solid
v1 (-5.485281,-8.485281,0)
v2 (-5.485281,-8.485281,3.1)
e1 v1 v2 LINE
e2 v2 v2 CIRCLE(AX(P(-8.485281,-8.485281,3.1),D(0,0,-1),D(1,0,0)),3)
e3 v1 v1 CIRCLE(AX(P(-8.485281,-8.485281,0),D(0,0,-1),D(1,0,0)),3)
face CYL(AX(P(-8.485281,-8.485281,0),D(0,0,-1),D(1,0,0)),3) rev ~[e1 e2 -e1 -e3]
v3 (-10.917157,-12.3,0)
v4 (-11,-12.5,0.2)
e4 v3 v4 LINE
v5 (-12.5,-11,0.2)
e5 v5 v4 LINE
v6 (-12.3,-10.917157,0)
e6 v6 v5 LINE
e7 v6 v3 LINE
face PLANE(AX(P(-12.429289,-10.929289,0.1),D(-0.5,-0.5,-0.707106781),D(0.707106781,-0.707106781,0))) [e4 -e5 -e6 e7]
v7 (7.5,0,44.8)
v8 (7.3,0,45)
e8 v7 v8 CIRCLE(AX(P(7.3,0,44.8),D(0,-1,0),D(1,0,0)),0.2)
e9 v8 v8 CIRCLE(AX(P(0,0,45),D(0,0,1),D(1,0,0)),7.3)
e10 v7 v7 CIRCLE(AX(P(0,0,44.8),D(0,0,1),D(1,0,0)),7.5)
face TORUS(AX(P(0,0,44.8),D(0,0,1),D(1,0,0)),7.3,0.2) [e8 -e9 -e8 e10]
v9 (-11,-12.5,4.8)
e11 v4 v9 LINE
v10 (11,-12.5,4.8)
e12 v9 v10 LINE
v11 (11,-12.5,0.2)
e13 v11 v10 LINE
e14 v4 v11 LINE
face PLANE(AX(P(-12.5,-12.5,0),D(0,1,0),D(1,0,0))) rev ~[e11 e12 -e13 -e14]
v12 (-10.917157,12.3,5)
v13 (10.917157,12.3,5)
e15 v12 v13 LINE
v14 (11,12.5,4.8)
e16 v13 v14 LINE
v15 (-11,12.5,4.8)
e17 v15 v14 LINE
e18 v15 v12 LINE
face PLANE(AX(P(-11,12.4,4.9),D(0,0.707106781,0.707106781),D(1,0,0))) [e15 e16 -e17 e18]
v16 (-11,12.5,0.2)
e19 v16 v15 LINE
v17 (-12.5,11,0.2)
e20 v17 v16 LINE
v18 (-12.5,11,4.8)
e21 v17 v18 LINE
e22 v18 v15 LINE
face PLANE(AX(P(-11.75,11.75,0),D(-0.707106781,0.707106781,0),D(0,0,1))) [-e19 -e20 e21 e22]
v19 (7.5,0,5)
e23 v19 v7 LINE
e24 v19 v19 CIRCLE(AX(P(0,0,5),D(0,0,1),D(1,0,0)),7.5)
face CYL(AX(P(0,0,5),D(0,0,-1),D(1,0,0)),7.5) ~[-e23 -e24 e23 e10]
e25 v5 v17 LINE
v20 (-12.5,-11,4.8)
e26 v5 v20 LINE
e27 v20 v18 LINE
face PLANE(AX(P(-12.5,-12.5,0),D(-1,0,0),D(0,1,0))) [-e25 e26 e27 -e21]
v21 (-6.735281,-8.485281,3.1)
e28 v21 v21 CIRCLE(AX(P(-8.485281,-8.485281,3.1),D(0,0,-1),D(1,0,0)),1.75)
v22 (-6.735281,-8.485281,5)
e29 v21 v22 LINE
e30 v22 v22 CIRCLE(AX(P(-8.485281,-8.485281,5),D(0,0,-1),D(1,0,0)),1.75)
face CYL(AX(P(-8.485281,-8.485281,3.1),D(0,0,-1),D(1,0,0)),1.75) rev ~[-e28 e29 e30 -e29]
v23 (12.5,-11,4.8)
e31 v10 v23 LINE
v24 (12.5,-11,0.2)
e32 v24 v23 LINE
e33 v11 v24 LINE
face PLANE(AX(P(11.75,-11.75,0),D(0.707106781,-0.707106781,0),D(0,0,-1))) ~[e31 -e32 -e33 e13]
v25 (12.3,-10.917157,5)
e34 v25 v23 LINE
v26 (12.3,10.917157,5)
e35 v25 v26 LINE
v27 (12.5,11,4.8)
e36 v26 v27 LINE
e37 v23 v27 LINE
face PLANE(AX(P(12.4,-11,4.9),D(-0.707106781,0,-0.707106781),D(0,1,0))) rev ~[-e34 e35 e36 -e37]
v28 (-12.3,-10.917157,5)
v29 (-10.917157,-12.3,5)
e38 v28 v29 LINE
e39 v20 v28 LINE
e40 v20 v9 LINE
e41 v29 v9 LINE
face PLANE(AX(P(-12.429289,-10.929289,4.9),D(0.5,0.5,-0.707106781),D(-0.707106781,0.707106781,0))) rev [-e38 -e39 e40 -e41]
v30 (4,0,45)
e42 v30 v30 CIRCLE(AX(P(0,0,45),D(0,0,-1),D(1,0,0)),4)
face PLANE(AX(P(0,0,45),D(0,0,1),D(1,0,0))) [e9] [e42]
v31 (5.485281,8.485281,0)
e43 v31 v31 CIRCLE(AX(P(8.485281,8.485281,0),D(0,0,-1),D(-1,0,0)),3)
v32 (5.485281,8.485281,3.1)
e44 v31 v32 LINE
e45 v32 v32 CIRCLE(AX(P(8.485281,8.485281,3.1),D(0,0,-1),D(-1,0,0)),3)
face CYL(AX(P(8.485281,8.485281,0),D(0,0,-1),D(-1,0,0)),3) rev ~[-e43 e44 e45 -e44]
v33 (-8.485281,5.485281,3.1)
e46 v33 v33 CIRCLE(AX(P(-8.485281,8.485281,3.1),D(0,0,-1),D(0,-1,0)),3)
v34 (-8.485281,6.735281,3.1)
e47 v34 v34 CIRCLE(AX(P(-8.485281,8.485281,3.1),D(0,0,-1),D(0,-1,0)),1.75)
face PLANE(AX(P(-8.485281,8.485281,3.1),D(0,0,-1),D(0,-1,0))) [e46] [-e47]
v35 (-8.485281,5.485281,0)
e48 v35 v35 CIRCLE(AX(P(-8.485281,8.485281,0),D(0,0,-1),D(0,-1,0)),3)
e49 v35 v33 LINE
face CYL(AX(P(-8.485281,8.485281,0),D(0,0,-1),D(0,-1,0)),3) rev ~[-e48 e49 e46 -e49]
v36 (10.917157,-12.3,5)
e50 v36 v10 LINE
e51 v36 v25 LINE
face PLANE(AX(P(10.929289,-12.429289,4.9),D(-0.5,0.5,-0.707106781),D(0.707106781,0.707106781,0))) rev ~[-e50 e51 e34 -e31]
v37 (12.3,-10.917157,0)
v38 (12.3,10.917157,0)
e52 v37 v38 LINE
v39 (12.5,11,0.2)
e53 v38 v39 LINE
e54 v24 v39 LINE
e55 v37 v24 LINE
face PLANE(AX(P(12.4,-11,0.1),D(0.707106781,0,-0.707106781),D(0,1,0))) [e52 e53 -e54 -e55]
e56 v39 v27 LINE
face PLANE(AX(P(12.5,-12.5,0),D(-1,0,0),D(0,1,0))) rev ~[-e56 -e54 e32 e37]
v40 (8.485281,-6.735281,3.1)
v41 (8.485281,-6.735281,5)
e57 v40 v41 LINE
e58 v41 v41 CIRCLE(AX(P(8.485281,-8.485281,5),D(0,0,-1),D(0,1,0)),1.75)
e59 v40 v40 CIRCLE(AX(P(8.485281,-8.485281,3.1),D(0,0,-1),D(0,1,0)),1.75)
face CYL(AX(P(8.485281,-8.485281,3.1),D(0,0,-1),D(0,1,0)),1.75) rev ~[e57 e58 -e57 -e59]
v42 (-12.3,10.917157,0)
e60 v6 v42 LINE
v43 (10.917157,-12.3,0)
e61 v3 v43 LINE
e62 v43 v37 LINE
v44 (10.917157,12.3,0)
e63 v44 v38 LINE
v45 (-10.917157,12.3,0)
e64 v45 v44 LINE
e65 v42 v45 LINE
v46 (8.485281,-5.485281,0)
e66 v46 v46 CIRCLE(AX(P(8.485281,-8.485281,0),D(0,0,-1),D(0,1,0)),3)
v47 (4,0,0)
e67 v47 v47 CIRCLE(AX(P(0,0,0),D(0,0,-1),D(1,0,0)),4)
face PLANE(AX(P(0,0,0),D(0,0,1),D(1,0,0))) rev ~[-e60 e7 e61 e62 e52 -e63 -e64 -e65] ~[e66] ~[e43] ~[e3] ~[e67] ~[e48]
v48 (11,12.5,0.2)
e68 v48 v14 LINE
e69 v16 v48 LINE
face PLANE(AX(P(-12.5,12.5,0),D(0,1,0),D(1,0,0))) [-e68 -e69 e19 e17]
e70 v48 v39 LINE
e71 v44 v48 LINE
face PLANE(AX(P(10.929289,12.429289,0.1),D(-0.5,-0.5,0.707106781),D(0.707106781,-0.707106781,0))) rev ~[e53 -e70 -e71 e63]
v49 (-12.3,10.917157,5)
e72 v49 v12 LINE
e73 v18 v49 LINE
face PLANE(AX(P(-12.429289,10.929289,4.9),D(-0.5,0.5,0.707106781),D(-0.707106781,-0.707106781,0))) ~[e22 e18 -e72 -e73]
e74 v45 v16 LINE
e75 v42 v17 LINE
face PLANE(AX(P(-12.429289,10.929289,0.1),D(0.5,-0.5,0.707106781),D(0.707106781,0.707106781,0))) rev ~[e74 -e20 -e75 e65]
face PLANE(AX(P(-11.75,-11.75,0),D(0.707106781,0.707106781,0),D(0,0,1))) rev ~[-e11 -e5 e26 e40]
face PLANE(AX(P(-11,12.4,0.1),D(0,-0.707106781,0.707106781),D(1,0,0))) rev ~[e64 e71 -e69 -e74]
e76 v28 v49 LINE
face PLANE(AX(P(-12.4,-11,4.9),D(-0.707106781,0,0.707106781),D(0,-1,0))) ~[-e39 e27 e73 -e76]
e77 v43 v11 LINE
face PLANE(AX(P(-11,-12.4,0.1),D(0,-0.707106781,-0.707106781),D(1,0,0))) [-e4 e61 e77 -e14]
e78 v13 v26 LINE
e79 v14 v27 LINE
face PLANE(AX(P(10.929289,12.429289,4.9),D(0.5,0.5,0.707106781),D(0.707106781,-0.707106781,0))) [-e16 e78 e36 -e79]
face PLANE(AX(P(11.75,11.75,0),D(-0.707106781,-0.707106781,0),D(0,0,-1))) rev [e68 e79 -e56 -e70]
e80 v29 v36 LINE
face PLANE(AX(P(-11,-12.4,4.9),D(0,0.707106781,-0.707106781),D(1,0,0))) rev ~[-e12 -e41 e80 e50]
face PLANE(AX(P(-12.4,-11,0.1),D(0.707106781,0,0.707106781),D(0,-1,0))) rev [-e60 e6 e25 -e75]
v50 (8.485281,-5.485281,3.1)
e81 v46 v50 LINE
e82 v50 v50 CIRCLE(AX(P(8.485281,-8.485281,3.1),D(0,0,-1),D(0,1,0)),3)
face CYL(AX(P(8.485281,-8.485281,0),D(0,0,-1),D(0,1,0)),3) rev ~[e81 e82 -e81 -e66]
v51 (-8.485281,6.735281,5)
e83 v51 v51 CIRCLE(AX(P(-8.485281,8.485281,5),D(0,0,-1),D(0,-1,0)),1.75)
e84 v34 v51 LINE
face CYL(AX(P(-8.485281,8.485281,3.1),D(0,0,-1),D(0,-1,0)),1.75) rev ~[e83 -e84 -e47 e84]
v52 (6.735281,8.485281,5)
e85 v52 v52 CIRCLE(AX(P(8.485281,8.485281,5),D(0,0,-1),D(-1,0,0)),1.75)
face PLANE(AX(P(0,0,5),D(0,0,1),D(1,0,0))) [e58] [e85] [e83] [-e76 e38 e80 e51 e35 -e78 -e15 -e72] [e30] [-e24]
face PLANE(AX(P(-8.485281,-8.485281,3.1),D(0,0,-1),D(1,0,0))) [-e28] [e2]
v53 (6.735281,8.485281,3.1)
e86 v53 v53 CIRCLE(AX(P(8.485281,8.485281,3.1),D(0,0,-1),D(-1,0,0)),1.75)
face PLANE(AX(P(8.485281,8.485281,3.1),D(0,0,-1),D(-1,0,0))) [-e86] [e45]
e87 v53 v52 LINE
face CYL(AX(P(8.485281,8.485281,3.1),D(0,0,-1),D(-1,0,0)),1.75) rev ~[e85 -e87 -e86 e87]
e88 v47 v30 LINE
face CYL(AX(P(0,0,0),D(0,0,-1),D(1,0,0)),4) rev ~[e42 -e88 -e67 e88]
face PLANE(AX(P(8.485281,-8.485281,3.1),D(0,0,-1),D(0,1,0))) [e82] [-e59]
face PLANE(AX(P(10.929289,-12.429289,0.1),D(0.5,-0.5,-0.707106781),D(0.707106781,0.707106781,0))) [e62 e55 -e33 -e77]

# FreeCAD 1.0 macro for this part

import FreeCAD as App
import Part
import Sketcher
from FreeCAD import Vector
Q = App.Units.Quantity


def edges_at(feature, points):
    """Names of the edges that pass closest to the given points."""
    edges = feature.Shape.Edges
    near = lambda p: min(range(len(edges)), key=lambda i: edges[i].distToShape(Part.Vertex(*p))[0])
    return sorted({f"Edge{near(p) + 1}" for p in points})

doc = App.newDocument("Part")
body = doc.addObject("PartDesign::Body", "Body")

sketch1 = body.newObject("Sketcher::SketchObject", "Sketch")
sketch1.AttachmentSupport = (doc.getObject("XY_Plane"), [""])
sketch1.MapMode = "FlatFace"
sketch1.addGeometry([
    Part.LineSegment(Vector(-12, 12, 0), Vector(-12, -12, 0)),
    Part.LineSegment(Vector(-12, -12, 0), Vector(12, -12, 0)),
    Part.LineSegment(Vector(12, -12, 0), Vector(12, 12, 0)),
    Part.LineSegment(Vector(12, 12, 0), Vector(-12, 12, 0)),
], False)
sketch1.addConstraint([
    Sketcher.Constraint("Coincident", 0, 2, 1, 1),
    Sketcher.Constraint("Coincident", 1, 2, 2, 1),
    Sketcher.Constraint("Coincident", 2, 2, 3, 1),
    Sketcher.Constraint("Coincident", 3, 2, 0, 1),
    Sketcher.Constraint("Vertical", 0),
    Sketcher.Constraint("Horizontal", 1),
    Sketcher.Constraint("Vertical", 2),
    Sketcher.Constraint("Horizontal", 3),
    Sketcher.Constraint("Symmetric", 0, 2, 2, 2, -1, 1),
    Sketcher.Constraint("Equal", 3, 0),
    Sketcher.Constraint("DistanceX", 1, 1, 1, 2, Q("25 mm")),
])
pad1 = body.newObject("PartDesign::Pad", "Pad")
pad1.Profile = sketch1
pad1.Length = 5

sketch2 = body.newObject("Sketcher::SketchObject", "Sketch001")
sketch2.AttachmentSupport = (doc.getObject("XY_Plane"), [""])
sketch2.MapMode = "FlatFace"
sketch2.AttachmentOffset = App.Placement(Vector(0, 0, 5), App.Rotation())
sketch2.addGeometry(Part.Circle(Vector(0, 0, 0), Vector(0, 0, 1), 8), False)
sketch2.addConstraint([
    Sketcher.Constraint("Coincident", 0, 3, -1, 1),
    Sketcher.Constraint("Diameter", 0, Q("15 mm")),
])
pad2 = body.newObject("PartDesign::Pad", "Pad001")
pad2.Profile = sketch2
pad2.Length = 40

sketch3 = body.newObject("Sketcher::SketchObject", "Sketch002")
sketch3.AttachmentSupport = (doc.getObject("XY_Plane"), [""])
sketch3.MapMode = "FlatFace"
sketch3.addGeometry(Part.Circle(Vector(0, 0, 0), Vector(0, 0, 1), 4), False)
sketch3.addConstraint([
    Sketcher.Constraint("Coincident", 0, 3, -1, 1),
    Sketcher.Constraint("Diameter", 0, Q("8 mm")),
])
pocket1 = body.newObject("PartDesign::Pocket", "Pocket")
pocket1.Profile = sketch3
pocket1.Type = "ThroughAll"
pocket1.Reversed = True

sketch4 = body.newObject("Sketcher::SketchObject", "Sketch003")
sketch4.AttachmentSupport = (doc.getObject("XY_Plane"), [""])
sketch4.MapMode = "FlatFace"
sketch4.addGeometry(Part.Circle(Vector(-8.5, -8.5, 0), Vector(0, 0, 1), 3), False)
sketch4.addConstraint([
    Sketcher.Constraint("Diameter", 0, Q("6 mm")),
    Sketcher.Constraint("DistanceX", 0, 3, -1, 1, Q("8.485281 mm")),
    Sketcher.Constraint("DistanceY", 0, 3, -1, 1, Q("8.485281 mm")),
])
pocket2 = body.newObject("PartDesign::Pocket", "Pocket001")
pocket2.Profile = sketch4
pocket2.Length = 3.1
pocket2.Reversed = True
doc.recompute()

polarpattern = body.newObject("PartDesign::PolarPattern", "PolarPattern")
polarpattern.Originals = [pocket2]
polarpattern.Axis = (doc.getObject("Z_Axis"), [""])
polarpattern.Angle = 360
polarpattern.Occurrences = 4
body.Tip = polarpattern

sketch5 = body.newObject("Sketcher::SketchObject", "Sketch004")
sketch5.AttachmentSupport = (doc.getObject("XY_Plane"), [""])
sketch5.MapMode = "FlatFace"
sketch5.AttachmentOffset = App.Placement(Vector(0, 0, 3.1), App.Rotation())
sketch5.addGeometry(Part.Circle(Vector(-8.5, -8.5, 0), Vector(0, 0, 1), 1.8), False)
sketch5.addConstraint([
    Sketcher.Constraint("Diameter", 0, Q("3.5 mm")),
    Sketcher.Constraint("DistanceX", 0, 3, -1, 1, Q("8.485281 mm")),
    Sketcher.Constraint("DistanceY", 0, 3, -1, 1, Q("8.485281 mm")),
])
pocket3 = body.newObject("PartDesign::Pocket", "Pocket002")
pocket3.Profile = sketch5
pocket3.Type = "ThroughAll"
pocket3.Reversed = True
doc.recompute()

polarpattern2 = body.newObject("PartDesign::PolarPattern", "PolarPattern001")
polarpattern2.Originals = [pocket3]
polarpattern2.Axis = (doc.getObject("Z_Axis"), [""])
polarpattern2.Angle = 360
polarpattern2.Occurrences = 4
body.Tip = polarpattern2
doc.recompute()

chamfer = body.newObject("PartDesign::Chamfer", "Chamfer")
chamfer.Base = (polarpattern2, edges_at(polarpattern2, [
    (-12.5, 12.5, 2.5),
    (-12.5, -12.5, 2.5),
    (12.5, -12.5, 2.5),
    (12.5, 12.5, 2.5),
]))
chamfer.Size = 1.5
doc.recompute()

chamfer2 = body.newObject("PartDesign::Chamfer", "Chamfer001")
chamfer2.Base = (chamfer, edges_at(chamfer, [
    (-11.75, 11.75, 0),
    (0, 12.5, 0),
    (11.75, 11.75, 0),
    (12.5, 0, 0),
    (11.75, -11.75, 0),
    (0, -12.5, 0),
    (-11.75, -11.75, 0),
    (-12.5, 0, 0),
    (-11.75, 11.75, 5),
    (0, 12.5, 5),
    (11.75, 11.75, 5),
    (12.5, 0, 5),
    (0, -12.5, 5),
    (-11.75, -11.75, 5),
    (-12.5, 0, 5),
    (11.75, -11.75, 5),
]))
chamfer2.Size = 0.2
doc.recompute()

fillet = body.newObject("PartDesign::Fillet", "Fillet")
fillet.Base = (chamfer2, edges_at(chamfer2, [(-7.5, 0, 45)]))
fillet.Radius = 0.2

doc.recompute()
